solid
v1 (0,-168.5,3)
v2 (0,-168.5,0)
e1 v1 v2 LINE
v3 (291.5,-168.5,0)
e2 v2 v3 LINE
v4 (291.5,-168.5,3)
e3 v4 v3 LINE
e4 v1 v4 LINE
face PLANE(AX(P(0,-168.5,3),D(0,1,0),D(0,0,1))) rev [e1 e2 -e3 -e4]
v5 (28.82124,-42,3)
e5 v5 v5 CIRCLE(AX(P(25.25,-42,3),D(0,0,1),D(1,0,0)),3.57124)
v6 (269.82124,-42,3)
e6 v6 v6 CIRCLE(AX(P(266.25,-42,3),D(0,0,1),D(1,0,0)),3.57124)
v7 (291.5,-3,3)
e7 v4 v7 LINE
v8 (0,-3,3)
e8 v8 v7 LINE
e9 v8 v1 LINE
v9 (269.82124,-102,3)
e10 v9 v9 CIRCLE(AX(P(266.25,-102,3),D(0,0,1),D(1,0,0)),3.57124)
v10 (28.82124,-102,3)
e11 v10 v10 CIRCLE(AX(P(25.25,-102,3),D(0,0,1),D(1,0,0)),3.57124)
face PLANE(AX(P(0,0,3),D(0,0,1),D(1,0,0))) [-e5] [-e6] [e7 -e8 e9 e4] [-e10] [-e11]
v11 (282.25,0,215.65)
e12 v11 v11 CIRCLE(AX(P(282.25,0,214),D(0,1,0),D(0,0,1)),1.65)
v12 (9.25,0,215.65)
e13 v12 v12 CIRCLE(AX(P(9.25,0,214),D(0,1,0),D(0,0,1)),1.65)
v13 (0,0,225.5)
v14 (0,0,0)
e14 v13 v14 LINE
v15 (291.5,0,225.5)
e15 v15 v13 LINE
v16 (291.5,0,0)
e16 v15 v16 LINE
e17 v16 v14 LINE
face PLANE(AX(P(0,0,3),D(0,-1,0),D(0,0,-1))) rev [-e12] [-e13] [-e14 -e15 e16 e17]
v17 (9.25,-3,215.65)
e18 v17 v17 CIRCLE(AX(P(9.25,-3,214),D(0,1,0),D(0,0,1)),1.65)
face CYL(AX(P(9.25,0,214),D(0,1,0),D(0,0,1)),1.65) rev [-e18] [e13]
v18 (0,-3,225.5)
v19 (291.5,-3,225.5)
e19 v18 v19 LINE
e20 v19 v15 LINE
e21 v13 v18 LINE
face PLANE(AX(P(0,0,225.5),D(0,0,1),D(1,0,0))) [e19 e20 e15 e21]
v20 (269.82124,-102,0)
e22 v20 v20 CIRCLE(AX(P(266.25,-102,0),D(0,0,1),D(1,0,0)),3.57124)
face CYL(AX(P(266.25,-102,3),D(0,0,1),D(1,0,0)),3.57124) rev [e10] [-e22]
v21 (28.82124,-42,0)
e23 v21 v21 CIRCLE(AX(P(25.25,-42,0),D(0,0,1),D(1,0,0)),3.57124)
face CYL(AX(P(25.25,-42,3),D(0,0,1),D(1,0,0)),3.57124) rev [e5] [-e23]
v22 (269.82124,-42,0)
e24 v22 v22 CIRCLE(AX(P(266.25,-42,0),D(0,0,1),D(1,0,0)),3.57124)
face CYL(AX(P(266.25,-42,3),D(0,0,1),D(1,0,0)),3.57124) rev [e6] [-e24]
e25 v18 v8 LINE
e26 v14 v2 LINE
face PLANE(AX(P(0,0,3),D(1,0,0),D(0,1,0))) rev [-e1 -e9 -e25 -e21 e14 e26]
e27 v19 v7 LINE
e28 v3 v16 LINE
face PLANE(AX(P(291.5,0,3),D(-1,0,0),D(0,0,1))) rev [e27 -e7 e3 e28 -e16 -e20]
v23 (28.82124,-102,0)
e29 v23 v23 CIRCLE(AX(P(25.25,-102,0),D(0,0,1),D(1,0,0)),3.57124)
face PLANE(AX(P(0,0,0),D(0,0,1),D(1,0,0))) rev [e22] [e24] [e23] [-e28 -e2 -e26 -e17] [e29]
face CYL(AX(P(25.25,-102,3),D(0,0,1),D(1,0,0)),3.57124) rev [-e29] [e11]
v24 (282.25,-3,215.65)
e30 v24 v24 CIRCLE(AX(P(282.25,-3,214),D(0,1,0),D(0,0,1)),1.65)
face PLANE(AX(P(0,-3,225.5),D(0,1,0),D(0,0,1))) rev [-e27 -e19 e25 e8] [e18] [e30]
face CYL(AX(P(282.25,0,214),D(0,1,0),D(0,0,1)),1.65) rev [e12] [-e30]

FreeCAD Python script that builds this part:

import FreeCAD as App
import Part
import Sketcher
Q = App.Units.Quantity


def add_polygon(sketch, points):
    """Adds a closed chain of lines whose ends are joined by coincident constraints."""
    first, n = sketch.GeometryCount, len(points)
    for a, b in zip(points, points[1:] + points[:1]):
        sketch.addGeometry(Part.LineSegment(App.Vector(*a, 0), App.Vector(*b, 0)), False)
    for i in range(n):
        sketch.addConstraint(Sketcher.Constraint("Coincident", first + i, 2, first + (i + 1) % n, 1))

doc = App.newDocument("Part")
body = doc.addObject("PartDesign::Body", "Body")

# Sketch on XY plane
sketch1 = body.newObject("Sketcher::SketchObject", "Sketch")
sketch1.AttachmentSupport = (doc.getObject("XY_Plane"), [""])
sketch1.MapMode = "FlatFace"
add_polygon(sketch1, [(0, 0), (0, -168), (292, -168), (292, 0)])  # lines 0-3
sketch1.addConstraint([
    Sketcher.Constraint("Vertical", 0),
    Sketcher.Constraint("Horizontal", 1),
    Sketcher.Constraint("Vertical", 2),
    Sketcher.Constraint("Horizontal", 3),
    Sketcher.Constraint("Coincident", 3, 2, -1, 1),
    Sketcher.Constraint("DistanceX", 1, 1, 1, 2, Q("291.5 mm")),
    Sketcher.Constraint("DistanceY", 0, 2, 0, 1, Q("168.5 mm")),
])
pad1 = body.newObject("PartDesign::Pad", "Pad")
pad1.Profile = sketch1
pad1.Length = 3

# Sketch on XY plane
sketch2 = body.newObject("Sketcher::SketchObject", "Sketch001")
sketch2.AttachmentSupport = (doc.getObject("XY_Plane"), [""])
sketch2.MapMode = "FlatFace"
sketch2.AttachmentOffset = App.Placement(App.Vector(0, 0, 3), App.Rotation())
sketch2.addGeometry([
    Part.Circle(App.Vector(25.2, -102, 0), App.Vector(0, 0, 1), 3.6),
    Part.Circle(App.Vector(25.2, -42, 0), App.Vector(0, 0, 1), 3.6),
    Part.Circle(App.Vector(266.2, -42, 0), App.Vector(0, 0, 1), 3.6),
    Part.Circle(App.Vector(266.2, -102, 0), App.Vector(0, 0, 1), 3.6),
], False)
sketch2.addConstraint([
    Sketcher.Constraint("Equal", 0, 1),
    Sketcher.Constraint("Equal", 1, 2),
    Sketcher.Constraint("Equal", 2, 3),
    Sketcher.Constraint("Horizontal", 1, 3, 2, 3),
    Sketcher.Constraint("Horizontal", 0, 3, 3, 3),
    Sketcher.Constraint("Vertical", 0, 3, 1, 3),
    Sketcher.Constraint("Vertical", 2, 3, 3, 3),
    Sketcher.Constraint("DistanceY", 0, 3, -1, 1, Q("102 mm")),
    Sketcher.Constraint("DistanceY", 1, 3, -1, 1, Q("42 mm")),
    Sketcher.Constraint("DistanceX", 1, 3, 2, 3, Q("241 mm")),
    Sketcher.Constraint("Diameter", 0, Q("7.14248 mm")),
    Sketcher.Constraint("DistanceX", -1, 1, 0, 3, Q("25.25 mm")),
])
doc.recompute()
hole = body.newObject("PartDesign::Hole", "Hole")
hole.Profile = sketch2
hole.ThreadType = "None"
hole.Diameter = 7.14248
hole.DepthType = "ThroughAll"

# Sketch on XY plane
sketch3 = body.newObject("Sketcher::SketchObject", "Sketch002")
sketch3.AttachmentSupport = (doc.getObject("XY_Plane"), [""])
sketch3.MapMode = "FlatFace"
sketch3.AttachmentOffset = App.Placement(App.Vector(0, 0, 3), App.Rotation())
add_polygon(sketch3, [(0, 0), (0, -3), (291.5, -3), (291.5, 0)])  # lines 0-3
sketch3.addConstraint([
    Sketcher.Constraint("Vertical", 0),
    Sketcher.Constraint("Horizontal", 1),
    Sketcher.Constraint("Vertical", 2),
    Sketcher.Constraint("Horizontal", 3),
    Sketcher.Constraint("Coincident", 3, 2, -1, 1),
    Sketcher.Constraint("DistanceY", 0, 2, 0, 1, Q("3 mm")),
    Sketcher.Constraint("DistanceX", 1, 1, 1, 2, Q("291.5 mm")),
])
pad2 = body.newObject("PartDesign::Pad", "Pad001")
pad2.Profile = sketch3
pad2.Length = 222.5

# Sketch on XZ plane
sketch4 = body.newObject("Sketcher::SketchObject", "Sketch003")
sketch4.AttachmentSupport = (doc.getObject("XZ_Plane"), [""])
sketch4.MapMode = "FlatFace"
sketch4.addGeometry([
    Part.Circle(App.Vector(9.2, 214, 0), App.Vector(0, 0, 1), 1.6),
    Part.Circle(App.Vector(282.2, 214, 0), App.Vector(0, 0, 1), 1.6),
], False)
sketch4.addConstraint([
    Sketcher.Constraint("Equal", 0, 1),
    Sketcher.Constraint("Horizontal", 0, 3, 1, 3),
    Sketcher.Constraint("Diameter", 0, Q("3.3 mm")),
    Sketcher.Constraint("DistanceY", -1, 1, 0, 3, Q("214 mm")),
    Sketcher.Constraint("DistanceX", 0, 3, 1, 3, Q("273 mm")),
    Sketcher.Constraint("DistanceX", -1, 1, 0, 3, Q("9.25 mm")),
])
doc.recompute()
hole2 = body.newObject("PartDesign::Hole", "Hole001")
hole2.Profile = sketch4
hole2.ThreadType = "None"
hole2.Diameter = 3.3
hole2.DepthType = "ThroughAll"
hole2.Reversed = True

doc.recompute()
